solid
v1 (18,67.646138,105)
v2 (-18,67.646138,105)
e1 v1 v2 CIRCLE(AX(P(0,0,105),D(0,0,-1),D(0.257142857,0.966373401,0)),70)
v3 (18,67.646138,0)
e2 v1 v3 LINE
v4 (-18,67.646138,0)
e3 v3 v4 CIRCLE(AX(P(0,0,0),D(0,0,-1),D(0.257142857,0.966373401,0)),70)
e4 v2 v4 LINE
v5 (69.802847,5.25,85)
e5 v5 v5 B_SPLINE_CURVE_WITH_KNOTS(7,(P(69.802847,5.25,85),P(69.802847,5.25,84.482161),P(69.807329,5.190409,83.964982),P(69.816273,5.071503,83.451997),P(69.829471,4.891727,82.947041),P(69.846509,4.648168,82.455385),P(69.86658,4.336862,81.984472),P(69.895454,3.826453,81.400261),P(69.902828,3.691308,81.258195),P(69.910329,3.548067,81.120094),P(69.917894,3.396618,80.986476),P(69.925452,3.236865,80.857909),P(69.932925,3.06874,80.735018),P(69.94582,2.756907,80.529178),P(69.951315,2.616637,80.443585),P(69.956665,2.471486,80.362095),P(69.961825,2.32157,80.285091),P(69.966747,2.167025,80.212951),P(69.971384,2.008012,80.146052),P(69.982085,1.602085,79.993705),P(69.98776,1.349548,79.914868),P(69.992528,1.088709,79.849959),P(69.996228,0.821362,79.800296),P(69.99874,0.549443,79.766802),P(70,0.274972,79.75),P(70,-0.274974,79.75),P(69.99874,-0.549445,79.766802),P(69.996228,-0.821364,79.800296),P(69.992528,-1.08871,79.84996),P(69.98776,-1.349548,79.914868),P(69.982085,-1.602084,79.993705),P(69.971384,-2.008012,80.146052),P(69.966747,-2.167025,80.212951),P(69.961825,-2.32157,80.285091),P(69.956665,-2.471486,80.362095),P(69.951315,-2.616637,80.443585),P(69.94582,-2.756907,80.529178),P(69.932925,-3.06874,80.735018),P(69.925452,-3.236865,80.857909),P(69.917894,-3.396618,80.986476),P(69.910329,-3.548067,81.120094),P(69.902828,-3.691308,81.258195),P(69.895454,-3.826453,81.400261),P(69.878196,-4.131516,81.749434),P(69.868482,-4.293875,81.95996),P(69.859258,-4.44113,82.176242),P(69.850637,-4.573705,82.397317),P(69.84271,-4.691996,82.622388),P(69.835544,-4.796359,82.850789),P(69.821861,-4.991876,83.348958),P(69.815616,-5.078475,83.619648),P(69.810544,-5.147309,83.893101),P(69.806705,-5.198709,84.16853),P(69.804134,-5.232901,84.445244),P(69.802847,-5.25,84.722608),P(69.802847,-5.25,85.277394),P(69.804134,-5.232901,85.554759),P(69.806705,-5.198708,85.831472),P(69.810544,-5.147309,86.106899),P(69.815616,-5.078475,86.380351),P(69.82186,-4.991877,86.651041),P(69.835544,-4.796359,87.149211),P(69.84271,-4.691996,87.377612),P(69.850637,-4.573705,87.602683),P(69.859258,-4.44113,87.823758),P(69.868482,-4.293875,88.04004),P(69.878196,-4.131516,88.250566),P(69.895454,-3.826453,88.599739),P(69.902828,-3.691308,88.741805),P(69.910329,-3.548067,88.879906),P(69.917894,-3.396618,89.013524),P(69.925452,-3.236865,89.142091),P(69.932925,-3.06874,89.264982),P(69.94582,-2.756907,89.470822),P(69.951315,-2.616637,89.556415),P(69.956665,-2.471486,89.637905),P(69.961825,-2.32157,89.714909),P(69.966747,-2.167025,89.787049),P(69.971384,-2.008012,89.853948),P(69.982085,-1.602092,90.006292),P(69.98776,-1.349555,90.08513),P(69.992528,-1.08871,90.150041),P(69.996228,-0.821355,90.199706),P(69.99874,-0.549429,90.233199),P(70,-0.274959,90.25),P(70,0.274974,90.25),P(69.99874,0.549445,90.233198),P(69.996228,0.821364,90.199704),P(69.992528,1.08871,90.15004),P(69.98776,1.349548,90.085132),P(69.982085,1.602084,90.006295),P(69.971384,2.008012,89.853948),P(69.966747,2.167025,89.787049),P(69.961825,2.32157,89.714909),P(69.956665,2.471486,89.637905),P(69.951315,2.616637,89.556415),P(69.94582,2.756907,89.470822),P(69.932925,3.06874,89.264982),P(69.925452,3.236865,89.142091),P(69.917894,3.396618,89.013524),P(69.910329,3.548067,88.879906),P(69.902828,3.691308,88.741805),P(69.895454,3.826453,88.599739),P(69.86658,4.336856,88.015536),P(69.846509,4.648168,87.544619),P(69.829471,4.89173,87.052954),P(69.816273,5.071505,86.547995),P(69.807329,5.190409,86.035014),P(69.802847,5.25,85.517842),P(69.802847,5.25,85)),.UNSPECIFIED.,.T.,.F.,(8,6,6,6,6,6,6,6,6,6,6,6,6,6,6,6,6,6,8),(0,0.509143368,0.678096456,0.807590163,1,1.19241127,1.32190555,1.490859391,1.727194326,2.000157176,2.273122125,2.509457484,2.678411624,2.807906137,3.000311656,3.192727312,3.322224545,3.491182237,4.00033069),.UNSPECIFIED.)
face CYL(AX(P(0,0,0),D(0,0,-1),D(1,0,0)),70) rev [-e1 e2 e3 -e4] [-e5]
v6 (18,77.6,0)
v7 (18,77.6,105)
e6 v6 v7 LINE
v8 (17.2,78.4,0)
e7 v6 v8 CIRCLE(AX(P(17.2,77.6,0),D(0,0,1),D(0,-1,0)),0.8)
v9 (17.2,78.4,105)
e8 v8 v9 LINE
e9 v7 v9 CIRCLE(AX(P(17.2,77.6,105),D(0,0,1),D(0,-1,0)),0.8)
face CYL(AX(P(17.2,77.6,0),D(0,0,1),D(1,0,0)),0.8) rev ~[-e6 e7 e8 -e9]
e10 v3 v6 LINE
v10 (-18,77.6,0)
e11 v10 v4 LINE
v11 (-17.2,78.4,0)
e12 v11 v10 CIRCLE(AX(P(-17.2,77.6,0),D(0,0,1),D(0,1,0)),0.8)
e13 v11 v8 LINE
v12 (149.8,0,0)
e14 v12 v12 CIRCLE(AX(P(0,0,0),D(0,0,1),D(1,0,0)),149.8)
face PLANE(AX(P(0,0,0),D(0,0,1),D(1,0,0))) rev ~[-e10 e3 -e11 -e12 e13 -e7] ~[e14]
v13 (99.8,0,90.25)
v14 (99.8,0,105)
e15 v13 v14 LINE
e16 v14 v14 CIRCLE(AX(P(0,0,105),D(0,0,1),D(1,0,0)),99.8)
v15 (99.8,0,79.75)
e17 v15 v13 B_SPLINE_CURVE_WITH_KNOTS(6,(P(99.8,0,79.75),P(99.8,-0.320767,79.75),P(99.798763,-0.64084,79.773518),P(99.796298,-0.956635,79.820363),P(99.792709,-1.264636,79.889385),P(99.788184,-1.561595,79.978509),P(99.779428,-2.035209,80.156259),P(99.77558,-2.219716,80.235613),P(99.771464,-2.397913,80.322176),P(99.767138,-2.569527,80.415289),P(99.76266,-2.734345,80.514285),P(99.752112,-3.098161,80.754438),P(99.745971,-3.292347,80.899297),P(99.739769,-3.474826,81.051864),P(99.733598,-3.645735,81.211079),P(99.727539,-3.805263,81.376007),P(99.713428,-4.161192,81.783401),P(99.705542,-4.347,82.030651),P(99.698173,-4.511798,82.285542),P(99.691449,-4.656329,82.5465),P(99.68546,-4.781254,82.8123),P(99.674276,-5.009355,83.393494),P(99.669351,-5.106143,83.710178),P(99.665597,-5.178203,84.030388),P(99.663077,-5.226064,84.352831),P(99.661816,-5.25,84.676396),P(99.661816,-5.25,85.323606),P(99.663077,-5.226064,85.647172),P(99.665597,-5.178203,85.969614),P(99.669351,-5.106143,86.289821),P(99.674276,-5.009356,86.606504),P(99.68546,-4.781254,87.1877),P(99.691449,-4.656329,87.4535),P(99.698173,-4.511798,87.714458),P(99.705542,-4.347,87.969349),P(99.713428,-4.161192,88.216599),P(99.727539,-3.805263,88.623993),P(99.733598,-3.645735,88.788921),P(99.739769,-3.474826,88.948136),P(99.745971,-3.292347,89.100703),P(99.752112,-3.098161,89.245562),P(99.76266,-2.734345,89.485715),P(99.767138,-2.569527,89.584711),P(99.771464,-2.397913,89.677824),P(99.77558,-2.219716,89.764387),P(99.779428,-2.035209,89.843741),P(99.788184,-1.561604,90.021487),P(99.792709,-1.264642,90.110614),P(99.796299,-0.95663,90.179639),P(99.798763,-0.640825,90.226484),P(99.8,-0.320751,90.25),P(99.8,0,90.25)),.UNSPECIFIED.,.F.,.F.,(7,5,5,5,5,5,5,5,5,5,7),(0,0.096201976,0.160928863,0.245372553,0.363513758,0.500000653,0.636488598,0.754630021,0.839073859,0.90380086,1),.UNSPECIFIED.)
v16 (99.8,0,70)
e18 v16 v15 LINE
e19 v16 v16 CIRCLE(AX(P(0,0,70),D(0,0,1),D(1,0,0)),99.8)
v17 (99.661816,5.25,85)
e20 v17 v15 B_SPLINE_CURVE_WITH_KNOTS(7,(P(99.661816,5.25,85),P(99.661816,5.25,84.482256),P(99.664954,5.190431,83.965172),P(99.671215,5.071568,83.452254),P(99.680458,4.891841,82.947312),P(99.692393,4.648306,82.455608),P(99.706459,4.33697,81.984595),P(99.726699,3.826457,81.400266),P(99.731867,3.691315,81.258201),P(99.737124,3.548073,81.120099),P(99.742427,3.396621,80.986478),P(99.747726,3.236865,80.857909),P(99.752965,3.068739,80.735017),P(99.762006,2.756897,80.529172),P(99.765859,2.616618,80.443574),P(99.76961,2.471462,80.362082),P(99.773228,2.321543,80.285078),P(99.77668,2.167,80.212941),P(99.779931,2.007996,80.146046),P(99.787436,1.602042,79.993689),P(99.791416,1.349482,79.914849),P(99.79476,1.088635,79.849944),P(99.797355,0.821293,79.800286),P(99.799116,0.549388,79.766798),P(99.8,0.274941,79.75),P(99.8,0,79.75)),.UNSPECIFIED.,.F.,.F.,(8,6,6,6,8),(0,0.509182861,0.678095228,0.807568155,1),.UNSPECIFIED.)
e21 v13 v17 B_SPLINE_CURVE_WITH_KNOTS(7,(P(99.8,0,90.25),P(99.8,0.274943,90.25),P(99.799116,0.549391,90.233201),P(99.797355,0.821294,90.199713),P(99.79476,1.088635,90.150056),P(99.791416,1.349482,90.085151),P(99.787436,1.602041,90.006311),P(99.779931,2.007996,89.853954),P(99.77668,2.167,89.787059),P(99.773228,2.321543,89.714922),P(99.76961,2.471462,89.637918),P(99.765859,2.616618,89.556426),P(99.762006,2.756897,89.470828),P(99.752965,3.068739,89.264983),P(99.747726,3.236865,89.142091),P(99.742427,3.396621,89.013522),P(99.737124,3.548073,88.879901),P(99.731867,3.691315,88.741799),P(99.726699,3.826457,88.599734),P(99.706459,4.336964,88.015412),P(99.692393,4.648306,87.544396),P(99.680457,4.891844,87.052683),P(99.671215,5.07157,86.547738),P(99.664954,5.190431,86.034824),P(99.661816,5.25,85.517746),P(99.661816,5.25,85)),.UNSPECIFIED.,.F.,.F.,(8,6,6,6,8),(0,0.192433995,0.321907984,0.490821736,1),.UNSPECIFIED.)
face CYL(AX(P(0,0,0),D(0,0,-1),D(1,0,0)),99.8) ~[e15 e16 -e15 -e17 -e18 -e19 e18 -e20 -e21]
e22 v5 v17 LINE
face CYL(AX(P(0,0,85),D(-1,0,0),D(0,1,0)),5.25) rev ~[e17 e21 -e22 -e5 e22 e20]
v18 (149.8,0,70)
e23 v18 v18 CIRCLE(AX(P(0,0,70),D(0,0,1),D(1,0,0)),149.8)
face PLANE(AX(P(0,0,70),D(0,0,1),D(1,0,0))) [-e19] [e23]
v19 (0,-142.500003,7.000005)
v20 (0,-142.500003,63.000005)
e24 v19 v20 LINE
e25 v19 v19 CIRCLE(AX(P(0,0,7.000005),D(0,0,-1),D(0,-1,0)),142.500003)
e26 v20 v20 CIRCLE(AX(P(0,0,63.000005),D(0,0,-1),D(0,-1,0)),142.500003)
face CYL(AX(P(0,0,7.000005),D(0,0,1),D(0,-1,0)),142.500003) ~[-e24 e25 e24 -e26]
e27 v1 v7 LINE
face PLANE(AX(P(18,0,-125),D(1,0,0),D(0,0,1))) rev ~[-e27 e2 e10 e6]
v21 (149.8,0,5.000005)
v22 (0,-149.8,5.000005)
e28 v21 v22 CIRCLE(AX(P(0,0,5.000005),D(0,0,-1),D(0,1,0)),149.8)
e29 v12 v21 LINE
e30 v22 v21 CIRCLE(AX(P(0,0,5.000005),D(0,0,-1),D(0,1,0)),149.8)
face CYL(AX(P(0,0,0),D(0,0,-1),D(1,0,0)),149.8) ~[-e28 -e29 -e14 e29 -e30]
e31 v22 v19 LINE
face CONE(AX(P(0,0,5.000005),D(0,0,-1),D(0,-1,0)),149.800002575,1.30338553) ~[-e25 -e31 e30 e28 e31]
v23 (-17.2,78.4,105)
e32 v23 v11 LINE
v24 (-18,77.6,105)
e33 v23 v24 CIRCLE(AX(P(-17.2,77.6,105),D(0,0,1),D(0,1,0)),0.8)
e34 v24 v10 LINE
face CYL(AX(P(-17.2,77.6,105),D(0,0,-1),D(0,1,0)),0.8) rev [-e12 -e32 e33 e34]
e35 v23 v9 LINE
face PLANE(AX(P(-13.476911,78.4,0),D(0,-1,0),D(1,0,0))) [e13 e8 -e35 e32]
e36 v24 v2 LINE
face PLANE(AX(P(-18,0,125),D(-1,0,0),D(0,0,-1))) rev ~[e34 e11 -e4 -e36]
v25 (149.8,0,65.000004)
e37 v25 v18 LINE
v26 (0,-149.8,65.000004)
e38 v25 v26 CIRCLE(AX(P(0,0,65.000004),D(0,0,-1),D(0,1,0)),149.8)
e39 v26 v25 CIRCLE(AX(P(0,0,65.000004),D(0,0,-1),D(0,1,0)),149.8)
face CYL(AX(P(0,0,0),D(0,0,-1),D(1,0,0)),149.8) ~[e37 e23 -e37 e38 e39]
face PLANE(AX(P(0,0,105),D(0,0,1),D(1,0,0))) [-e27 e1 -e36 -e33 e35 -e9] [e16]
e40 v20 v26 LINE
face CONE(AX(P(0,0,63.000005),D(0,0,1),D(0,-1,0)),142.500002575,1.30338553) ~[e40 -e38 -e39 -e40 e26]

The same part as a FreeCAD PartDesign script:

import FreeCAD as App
import Part
import Sketcher

V = App.Vector
Q = App.Units.Quantity


def edges_at(feature, points):
    """Names of the edges that pass closest to the given points."""
    edges = feature.Shape.Edges
    near = lambda p: min(range(len(edges)), key=lambda i: edges[i].distToShape(Part.Vertex(*p))[0])
    return sorted({f"Edge{near(p) + 1}" for p in points})


def add_polygon(sketch, points):
    """Adds a closed chain of lines whose ends are joined by coincident constraints."""
    first, n = sketch.GeometryCount, len(points)
    for a, b in zip(points, points[1:] + points[:1]):
        sketch.addGeometry(Part.LineSegment(App.Vector(*a, 0), App.Vector(*b, 0)), False)
    for i in range(n):
        sketch.addConstraint(Sketcher.Constraint("Coincident", first + i, 2, first + (i + 1) % n, 1))

doc = App.newDocument("Part")
params = doc.addObject("Spreadsheet::Sheet", "Params")
for row, (alias, value) in enumerate([
    ("sketch1_diameter", "299.6 mm"),
    ("sketch1_diameter2", "199.6 mm"),
    ("pad1_length", "70 mm"),
    ("sketch2_diameter", "140 mm"),
    ("sketch2_diameter2", "199.6 mm"),
    ("pad2_length", "105 mm"),
    ("sketch3_height", "56 mm"),
    ("sketch3_height2", "60 mm"),
    ("sketch4_diameter", "299.6 mm"),
    ("sketch5_width", "36 mm"),
    ("sketch5_height", "250 mm"),
    ("pocket1_length", "78.4 mm"),
    ("sketch6_diameter", "10.5 mm"),
    ("fillet_radius", "0.8 mm"),
], start=1):
    params.set(f"A{row}", alias)
    params.set(f"B{row}", "=" + value)
    params.setAlias(f"B{row}", alias)

body = doc.addObject("PartDesign::Body", "Body")

sketch1 = body.newObject("Sketcher::SketchObject", "Sketch")
sketch1.AttachmentSupport = (doc.getObject("XY_Plane"), [""])
sketch1.MapMode = "FlatFace"
sketch1.addGeometry([
    Part.Circle(V(0, 0, 0), V(0, 0, 1), 150),
    Part.Circle(V(0, 0, 0), V(0, 0, 1), 100),
], False)
sketch1.addConstraint([
    Sketcher.Constraint("Coincident", 0, 3, -1, 1),
    Sketcher.Constraint("Coincident", 1, 3, -1, 1),
    Sketcher.Constraint("Diameter", 0, Q("299.6 mm")),
    Sketcher.Constraint("Diameter", 1, Q("199.6 mm")),
])
sketch1.setExpression("Constraints[2]", "Params.sketch1_diameter")
sketch1.setExpression("Constraints[3]", "Params.sketch1_diameter2")
pad1 = body.newObject("PartDesign::Pad", "Pad")
pad1.Profile = sketch1
pad1.setExpression("Length", "Params.pad1_length")

sketch2 = body.newObject("Sketcher::SketchObject", "Sketch001")
sketch2.AttachmentSupport = (doc.getObject("XY_Plane"), [""])
sketch2.MapMode = "FlatFace"
sketch2.addGeometry([
    Part.Circle(V(0, 0, 0), V(0, 0, 1), 100),
    Part.Circle(V(0, 0, 0), V(0, 0, 1), 70),
], False)
sketch2.addConstraint([
    Sketcher.Constraint("Coincident", 0, 3, -1, 1),
    Sketcher.Constraint("Coincident", 1, 3, -1, 1),
    Sketcher.Constraint("Diameter", 1, Q("140 mm")),
    Sketcher.Constraint("Diameter", 0, Q("199.6 mm")),
])
sketch2.setExpression("Constraints[2]", "Params.sketch2_diameter")
sketch2.setExpression("Constraints[3]", "Params.sketch2_diameter2")
pad2 = body.newObject("PartDesign::Pad", "Pad001")
pad2.Profile = sketch2
pad2.setExpression("Length", "Params.pad2_length")

sketch3 = body.newObject("Sketcher::SketchObject", "Sketch002")
sketch3.AttachmentSupport = (doc.getObject("YZ_Plane"), [""])
sketch3.MapMode = "FlatFace"
add_polygon(sketch3, [(-150, 5), (-143, 7), (-143, 63), (-150, 65)])
sketch3.addConstraint([
    Sketcher.Constraint("Vertical", 1),
    Sketcher.Constraint("Vertical", 3),
    Sketcher.Constraint("Equal", 0, 2),
    Sketcher.Constraint("DistanceY", 1, 1, 1, 2, Q("56 mm")),
    Sketcher.Constraint("DistanceY", 3, 2, 3, 1, Q("60 mm")),
    Sketcher.Constraint("DistanceX", 2, 2, 1, 2, Q("7.3 mm")),
    Sketcher.Constraint("DistanceX", 0, 2, -1, 1, Q("142.500003 mm")),
    Sketcher.Constraint("DistanceY", -1, 1, 0, 2, Q("7.000005 mm")),
])
sketch3.setExpression("Constraints[7]", "Params.sketch3_height")
sketch3.setExpression("Constraints[8]", "Params.sketch3_height2")

sketch4 = body.newObject("Sketcher::SketchObject", "Sketch003")
sketch4.AttachmentSupport = (doc.getObject("XY_Plane"), [""])
sketch4.MapMode = "FlatFace"
sketch4.AttachmentOffset = App.Placement(V(0, 0, 70), App.Rotation())
sketch4.addGeometry(Part.Circle(V(0, 0, 0), V(0, 0, 1), 150), False)
sketch4.addConstraint([
    Sketcher.Constraint("Coincident", 0, 3, -1, 1),
    Sketcher.Constraint("Diameter", 0, Q("299.6 mm")),
])
sketch4.setExpression("Constraints[1]", "Params.sketch4_diameter")
doc.recompute()

subtractivepipe = body.newObject("PartDesign::SubtractivePipe", "SubtractivePipe")
subtractivepipe.Profile = sketch3
subtractivepipe.Spine = (sketch4, ["Edge1"])

sketch5 = body.newObject("Sketcher::SketchObject", "Sketch004")
sketch5.AttachmentSupport = (doc.getObject("XZ_Plane"), [""])
sketch5.MapMode = "FlatFace"
add_polygon(sketch5, [(-18, 125), (-18, -125), (18, -125), (18, 125)])
sketch5.addConstraint([
    Sketcher.Constraint("Vertical", 0),
    Sketcher.Constraint("Horizontal", 1),
    Sketcher.Constraint("Vertical", 2),
    Sketcher.Constraint("Horizontal", 3),
    Sketcher.Constraint("Symmetric", 0, 2, 2, 2, -1, 1),
    Sketcher.Constraint("DistanceX", 1, 1, 1, 2, Q("36 mm")),
    Sketcher.Constraint("DistanceY", 0, 2, 0, 1, Q("250 mm")),
])
sketch5.setExpression("Constraints[9]", "Params.sketch5_width")
sketch5.setExpression("Constraints[10]", "Params.sketch5_height")
pocket1 = body.newObject("PartDesign::Pocket", "Pocket")
pocket1.Profile = sketch5
pocket1.setExpression("Length", "Params.pocket1_length")

sketch6 = body.newObject("Sketcher::SketchObject", "Sketch005")
sketch6.AttachmentSupport = (doc.getObject("YZ_Plane"), [""])
sketch6.MapMode = "FlatFace"
sketch6.addGeometry(Part.Circle(V(0, 85, 0), V(0, 0, 1), 5), False)
sketch6.addConstraint([
    Sketcher.Constraint("PointOnObject", 0, 3, -2),
    Sketcher.Constraint("Diameter", 0, Q("10.5 mm")),
    Sketcher.Constraint("DistanceY", -1, 1, 0, 3, Q("85 mm")),
])
sketch6.setExpression("Constraints[1]", "Params.sketch6_diameter")
pocket2 = body.newObject("PartDesign::Pocket", "Pocket001")
pocket2.Profile = sketch6
pocket2.Type = "ThroughAll"
pocket2.Reversed = True
doc.recompute()

fillet = body.newObject("PartDesign::Fillet", "Fillet")
fillet.Base = (pocket2, edges_at(pocket2, [(18, 78.4, 52.5), (-18, 78.4, 52.5)]))
fillet.setExpression("Radius", "Params.fillet_radius")

doc.recompute()
